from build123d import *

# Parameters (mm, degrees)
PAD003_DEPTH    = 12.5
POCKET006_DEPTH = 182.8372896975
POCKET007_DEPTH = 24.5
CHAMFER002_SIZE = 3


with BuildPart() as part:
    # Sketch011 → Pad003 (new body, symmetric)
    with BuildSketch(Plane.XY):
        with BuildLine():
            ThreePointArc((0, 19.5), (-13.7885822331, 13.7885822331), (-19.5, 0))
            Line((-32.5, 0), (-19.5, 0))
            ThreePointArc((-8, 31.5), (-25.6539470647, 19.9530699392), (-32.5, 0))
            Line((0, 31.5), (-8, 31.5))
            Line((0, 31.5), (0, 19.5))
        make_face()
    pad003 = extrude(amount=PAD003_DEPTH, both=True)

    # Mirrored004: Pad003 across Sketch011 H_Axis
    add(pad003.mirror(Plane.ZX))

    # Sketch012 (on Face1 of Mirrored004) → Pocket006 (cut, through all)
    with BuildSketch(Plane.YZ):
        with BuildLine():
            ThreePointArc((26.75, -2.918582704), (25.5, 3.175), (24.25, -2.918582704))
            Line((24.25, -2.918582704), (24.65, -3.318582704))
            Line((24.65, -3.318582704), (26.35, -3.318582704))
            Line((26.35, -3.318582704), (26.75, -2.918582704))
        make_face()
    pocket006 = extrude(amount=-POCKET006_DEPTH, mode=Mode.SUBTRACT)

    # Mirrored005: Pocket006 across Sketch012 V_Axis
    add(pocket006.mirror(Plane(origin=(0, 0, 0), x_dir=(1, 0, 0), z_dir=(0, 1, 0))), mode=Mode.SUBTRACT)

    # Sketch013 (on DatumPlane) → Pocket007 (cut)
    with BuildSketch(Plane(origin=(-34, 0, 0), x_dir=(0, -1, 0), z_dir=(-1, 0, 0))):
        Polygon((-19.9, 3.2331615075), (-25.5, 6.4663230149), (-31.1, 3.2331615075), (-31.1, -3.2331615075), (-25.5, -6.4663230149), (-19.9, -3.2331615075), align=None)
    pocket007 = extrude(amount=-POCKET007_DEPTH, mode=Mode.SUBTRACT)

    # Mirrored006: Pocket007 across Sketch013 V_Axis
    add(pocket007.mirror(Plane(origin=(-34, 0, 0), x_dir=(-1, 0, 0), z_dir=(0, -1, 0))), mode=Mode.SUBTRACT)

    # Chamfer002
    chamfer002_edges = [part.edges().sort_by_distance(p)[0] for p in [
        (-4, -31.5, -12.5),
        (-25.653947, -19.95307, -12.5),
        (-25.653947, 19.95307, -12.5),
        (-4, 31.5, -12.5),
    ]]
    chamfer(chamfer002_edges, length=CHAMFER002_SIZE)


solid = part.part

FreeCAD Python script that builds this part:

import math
import FreeCAD as App
import Part
import Sketcher
Q = App.Units.Quantity


def edges_at(feature, points):
    """Names of the edges that pass closest to the given points."""
    edges = feature.Shape.Edges
    near = lambda p: min(range(len(edges)), key=lambda i: edges[i].distToShape(Part.Vertex(*p))[0])
    return sorted({f"Edge{near(p) + 1}" for p in points})

doc = App.newDocument("Part")
body = doc.addObject("PartDesign::Body", "Body")

# Sketch on XY plane
sketch1 = body.newObject("Sketcher::SketchObject", "Sketch")
sketch1.AttachmentSupport = (doc.getObject("XY_Plane"), [""])
sketch1.MapMode = "FlatFace"
sketch1.addGeometry(Part.ArcOfCircle(Part.Circle(App.Vector(0, 0, 0), App.Vector(0, 0, 1), 19.5), math.radians(90), math.radians(180)), False)
sketch1.addGeometry(Part.LineSegment(App.Vector(0, 19.5, 0), App.Vector(0, 31.5, 0)), False)
sketch1.addGeometry(Part.LineSegment(App.Vector(0, 31.5, 0), App.Vector(-8, 31.5, 0)), False)
sketch1.addGeometry(Part.ArcOfCircle(Part.Circle(App.Vector(0, 0, 0), App.Vector(0, 0, 1), 32.5), math.radians(104.250033), math.radians(180)), False)
sketch1.addGeometry(Part.LineSegment(App.Vector(-32.5, 0, 0), App.Vector(-19.5, 0, 0)), False)
sketch1.addConstraint(Sketcher.Constraint("Coincident", 0, 1, 1, 1))
sketch1.addConstraint(Sketcher.Constraint("Coincident", 1, 2, 2, 1))
sketch1.addConstraint(Sketcher.Constraint("Coincident", 2, 2, 3, 1))
sketch1.addConstraint(Sketcher.Constraint("Coincident", 3, 2, 4, 1))
sketch1.addConstraint(Sketcher.Constraint("Coincident", 4, 2, 0, 2))
sketch1.addConstraint(Sketcher.Constraint("Vertical", 1))
sketch1.addConstraint(Sketcher.Constraint("Horizontal", 2))
sketch1.addConstraint(Sketcher.Constraint("Horizontal", 4))
sketch1.addConstraint(Sketcher.Constraint("Coincident", 0, 3, -1, 1))
sketch1.addConstraint(Sketcher.Constraint("Coincident", 3, 3, -1, 1))
sketch1.addConstraint(Sketcher.Constraint("PointOnObject", 0, 1, -2))
sketch1.addConstraint(Sketcher.Constraint("PointOnObject", 3, 2, -1))
sketch1.addConstraint(Sketcher.Constraint("Radius", 0, Q("19.5 mm")))
sketch1.addConstraint(Sketcher.Constraint("Radius", 3, Q("32.5 mm")))
sketch1.addConstraint(Sketcher.Constraint("DistanceX", 2, 2, 2, 1, Q("8 mm")))
pad1 = body.newObject("PartDesign::Pad", "Pad")
pad1.Profile = sketch1
pad1.Length = 25
pad1.Midplane = True
doc.recompute()

mirrored = body.newObject("PartDesign::Mirrored", "Mirrored")
mirrored.Originals = [pad1]
mirrored.MirrorPlane = (doc.getObject("XZ_Plane"), [""])
body.Tip = mirrored

# Sketch on YZ plane
sketch2 = body.newObject("Sketcher::SketchObject", "Sketch001")
sketch2.AttachmentSupport = (doc.getObject("YZ_Plane"), [""])
sketch2.MapMode = "FlatFace"
sketch2.addGeometry(Part.ArcOfCircle(Part.Circle(App.Vector(25.5, 0, 0), App.Vector(0, 0, 1), 3.175), math.radians(-66.81503), math.radians(246.81503)), False)
sketch2.addGeometry(Part.LineSegment(App.Vector(24.25, -2.918583, 0), App.Vector(24.65, -3.318583, 0)), False)
sketch2.addGeometry(Part.LineSegment(App.Vector(24.65, -3.318583, 0), App.Vector(26.35, -3.318583, 0)), False)
sketch2.addGeometry(Part.LineSegment(App.Vector(26.35, -3.318583, 0), App.Vector(26.75, -2.918583, 0)), False)
sketch2.addConstraint(Sketcher.Constraint("Coincident", 0, 2, 1, 1))
sketch2.addConstraint(Sketcher.Constraint("Coincident", 1, 2, 2, 1))
sketch2.addConstraint(Sketcher.Constraint("Coincident", 2, 2, 3, 1))
sketch2.addConstraint(Sketcher.Constraint("Coincident", 3, 2, 0, 1))
sketch2.addConstraint(Sketcher.Constraint("Horizontal", 2))
sketch2.addConstraint(Sketcher.Constraint("PointOnObject", 0, 3, -1))
sketch2.addConstraint(Sketcher.Constraint("Perpendicular", 1, 3))
sketch2.addConstraint(Sketcher.Constraint("Horizontal", 0, 2, 3, 2))
sketch2.addConstraint(Sketcher.Constraint("Equal", 1, 3))
sketch2.addConstraint(Sketcher.Constraint("DistanceX", 2, 1, 2, 2, Q("1.7 mm")))
sketch2.addConstraint(Sketcher.Constraint("Radius", 0, Q("3.175 mm")))
sketch2.addConstraint(Sketcher.Constraint("DistanceX", -1, 1, 0, 3, Q("25.5 mm")))
sketch2.addConstraint(Sketcher.Constraint("DistanceX", 0, 2, 1, 2, Q("0.4 mm")))
pocket1 = body.newObject("PartDesign::Pocket", "Pocket")
pocket1.Profile = sketch2
pocket1.Type = "ThroughAll"
doc.recompute()

mirrored2 = body.newObject("PartDesign::Mirrored", "Mirrored001")
mirrored2.Originals = [pocket1]
mirrored2.MirrorPlane = (doc.getObject("XZ_Plane"), [""])
body.Tip = mirrored2

# Sketch on YZ plane
sketch3 = body.newObject("Sketcher::SketchObject", "Sketch002")
sketch3.AttachmentSupport = (doc.getObject("YZ_Plane"), [""])
sketch3.MapMode = "FlatFace"
sketch3.AttachmentOffset = App.Placement(App.Vector(0, 0, -34), App.Rotation())
sketch3.addGeometry(Part.LineSegment(App.Vector(19.9, 3.233162, 0), App.Vector(25.5, 6.466323, 0)), False)
sketch3.addGeometry(Part.LineSegment(App.Vector(25.5, 6.466323, 0), App.Vector(31.1, 3.233162, 0)), False)
sketch3.addGeometry(Part.LineSegment(App.Vector(31.1, 3.233162, 0), App.Vector(31.1, -3.233162, 0)), False)
sketch3.addGeometry(Part.LineSegment(App.Vector(31.1, -3.233162, 0), App.Vector(25.5, -6.466323, 0)), False)
sketch3.addGeometry(Part.LineSegment(App.Vector(25.5, -6.466323, 0), App.Vector(19.9, -3.233162, 0)), False)
sketch3.addGeometry(Part.LineSegment(App.Vector(19.9, -3.233162, 0), App.Vector(19.9, 3.233162, 0)), False)
sketch3.addConstraint(Sketcher.Constraint("Coincident", 0, 2, 1, 1))
sketch3.addConstraint(Sketcher.Constraint("Coincident", 1, 2, 2, 1))
sketch3.addConstraint(Sketcher.Constraint("Coincident", 2, 2, 3, 1))
sketch3.addConstraint(Sketcher.Constraint("Coincident", 3, 2, 4, 1))
sketch3.addConstraint(Sketcher.Constraint("Coincident", 4, 2, 5, 1))
sketch3.addConstraint(Sketcher.Constraint("Coincident", 5, 2, 0, 1))
sketch3.addConstraint(Sketcher.Constraint("Vertical", 2))
sketch3.addConstraint(Sketcher.Constraint("Vertical", 5))
sketch3.addConstraint(Sketcher.Constraint("Symmetric", 0, 2, 3, 2, -1))
sketch3.addConstraint(Sketcher.Constraint("Parallel", 0, 3))
sketch3.addConstraint(Sketcher.Constraint("Parallel", 1, 4))
sketch3.addConstraint(Sketcher.Constraint("Horizontal", 2, 2, 4, 2))
sketch3.addConstraint(Sketcher.Constraint("Horizontal", 1, 2, 5, 2))
sketch3.addConstraint(Sketcher.Constraint("Angle", 0, Q("30 deg")))
sketch3.addConstraint(Sketcher.Constraint("DistanceX", -1, 1, 0, 2, Q("25.5 mm")))
sketch3.addConstraint(Sketcher.Constraint("DistanceX", -1, 1, 1, 2, Q("31.1 mm")))
sketch3.addConstraint(Sketcher.Constraint("DistanceY", 2, 2, 2, 1, Q("6.466323 mm")))
pocket2 = body.newObject("PartDesign::Pocket", "Pocket001")
pocket2.Profile = sketch3
pocket2.Length = 24.5
pocket2.Reversed = True
doc.recompute()

mirrored3 = body.newObject("PartDesign::Mirrored", "Mirrored002")
mirrored3.Originals = [pocket2]
mirrored3.MirrorPlane = (doc.getObject("XZ_Plane"), [""])
body.Tip = mirrored3
doc.recompute()

chamfer = body.newObject("PartDesign::Chamfer", "Chamfer")
chamfer.Base = (mirrored3, edges_at(mirrored3, [
    (-4, -31.5, -12.5),
    (-25.654, -19.953, -12.5),
    (-25.654, 19.953, -12.5),
    (-4, 31.5, -12.5),
]))
chamfer.Size = 3

doc.recompute()
